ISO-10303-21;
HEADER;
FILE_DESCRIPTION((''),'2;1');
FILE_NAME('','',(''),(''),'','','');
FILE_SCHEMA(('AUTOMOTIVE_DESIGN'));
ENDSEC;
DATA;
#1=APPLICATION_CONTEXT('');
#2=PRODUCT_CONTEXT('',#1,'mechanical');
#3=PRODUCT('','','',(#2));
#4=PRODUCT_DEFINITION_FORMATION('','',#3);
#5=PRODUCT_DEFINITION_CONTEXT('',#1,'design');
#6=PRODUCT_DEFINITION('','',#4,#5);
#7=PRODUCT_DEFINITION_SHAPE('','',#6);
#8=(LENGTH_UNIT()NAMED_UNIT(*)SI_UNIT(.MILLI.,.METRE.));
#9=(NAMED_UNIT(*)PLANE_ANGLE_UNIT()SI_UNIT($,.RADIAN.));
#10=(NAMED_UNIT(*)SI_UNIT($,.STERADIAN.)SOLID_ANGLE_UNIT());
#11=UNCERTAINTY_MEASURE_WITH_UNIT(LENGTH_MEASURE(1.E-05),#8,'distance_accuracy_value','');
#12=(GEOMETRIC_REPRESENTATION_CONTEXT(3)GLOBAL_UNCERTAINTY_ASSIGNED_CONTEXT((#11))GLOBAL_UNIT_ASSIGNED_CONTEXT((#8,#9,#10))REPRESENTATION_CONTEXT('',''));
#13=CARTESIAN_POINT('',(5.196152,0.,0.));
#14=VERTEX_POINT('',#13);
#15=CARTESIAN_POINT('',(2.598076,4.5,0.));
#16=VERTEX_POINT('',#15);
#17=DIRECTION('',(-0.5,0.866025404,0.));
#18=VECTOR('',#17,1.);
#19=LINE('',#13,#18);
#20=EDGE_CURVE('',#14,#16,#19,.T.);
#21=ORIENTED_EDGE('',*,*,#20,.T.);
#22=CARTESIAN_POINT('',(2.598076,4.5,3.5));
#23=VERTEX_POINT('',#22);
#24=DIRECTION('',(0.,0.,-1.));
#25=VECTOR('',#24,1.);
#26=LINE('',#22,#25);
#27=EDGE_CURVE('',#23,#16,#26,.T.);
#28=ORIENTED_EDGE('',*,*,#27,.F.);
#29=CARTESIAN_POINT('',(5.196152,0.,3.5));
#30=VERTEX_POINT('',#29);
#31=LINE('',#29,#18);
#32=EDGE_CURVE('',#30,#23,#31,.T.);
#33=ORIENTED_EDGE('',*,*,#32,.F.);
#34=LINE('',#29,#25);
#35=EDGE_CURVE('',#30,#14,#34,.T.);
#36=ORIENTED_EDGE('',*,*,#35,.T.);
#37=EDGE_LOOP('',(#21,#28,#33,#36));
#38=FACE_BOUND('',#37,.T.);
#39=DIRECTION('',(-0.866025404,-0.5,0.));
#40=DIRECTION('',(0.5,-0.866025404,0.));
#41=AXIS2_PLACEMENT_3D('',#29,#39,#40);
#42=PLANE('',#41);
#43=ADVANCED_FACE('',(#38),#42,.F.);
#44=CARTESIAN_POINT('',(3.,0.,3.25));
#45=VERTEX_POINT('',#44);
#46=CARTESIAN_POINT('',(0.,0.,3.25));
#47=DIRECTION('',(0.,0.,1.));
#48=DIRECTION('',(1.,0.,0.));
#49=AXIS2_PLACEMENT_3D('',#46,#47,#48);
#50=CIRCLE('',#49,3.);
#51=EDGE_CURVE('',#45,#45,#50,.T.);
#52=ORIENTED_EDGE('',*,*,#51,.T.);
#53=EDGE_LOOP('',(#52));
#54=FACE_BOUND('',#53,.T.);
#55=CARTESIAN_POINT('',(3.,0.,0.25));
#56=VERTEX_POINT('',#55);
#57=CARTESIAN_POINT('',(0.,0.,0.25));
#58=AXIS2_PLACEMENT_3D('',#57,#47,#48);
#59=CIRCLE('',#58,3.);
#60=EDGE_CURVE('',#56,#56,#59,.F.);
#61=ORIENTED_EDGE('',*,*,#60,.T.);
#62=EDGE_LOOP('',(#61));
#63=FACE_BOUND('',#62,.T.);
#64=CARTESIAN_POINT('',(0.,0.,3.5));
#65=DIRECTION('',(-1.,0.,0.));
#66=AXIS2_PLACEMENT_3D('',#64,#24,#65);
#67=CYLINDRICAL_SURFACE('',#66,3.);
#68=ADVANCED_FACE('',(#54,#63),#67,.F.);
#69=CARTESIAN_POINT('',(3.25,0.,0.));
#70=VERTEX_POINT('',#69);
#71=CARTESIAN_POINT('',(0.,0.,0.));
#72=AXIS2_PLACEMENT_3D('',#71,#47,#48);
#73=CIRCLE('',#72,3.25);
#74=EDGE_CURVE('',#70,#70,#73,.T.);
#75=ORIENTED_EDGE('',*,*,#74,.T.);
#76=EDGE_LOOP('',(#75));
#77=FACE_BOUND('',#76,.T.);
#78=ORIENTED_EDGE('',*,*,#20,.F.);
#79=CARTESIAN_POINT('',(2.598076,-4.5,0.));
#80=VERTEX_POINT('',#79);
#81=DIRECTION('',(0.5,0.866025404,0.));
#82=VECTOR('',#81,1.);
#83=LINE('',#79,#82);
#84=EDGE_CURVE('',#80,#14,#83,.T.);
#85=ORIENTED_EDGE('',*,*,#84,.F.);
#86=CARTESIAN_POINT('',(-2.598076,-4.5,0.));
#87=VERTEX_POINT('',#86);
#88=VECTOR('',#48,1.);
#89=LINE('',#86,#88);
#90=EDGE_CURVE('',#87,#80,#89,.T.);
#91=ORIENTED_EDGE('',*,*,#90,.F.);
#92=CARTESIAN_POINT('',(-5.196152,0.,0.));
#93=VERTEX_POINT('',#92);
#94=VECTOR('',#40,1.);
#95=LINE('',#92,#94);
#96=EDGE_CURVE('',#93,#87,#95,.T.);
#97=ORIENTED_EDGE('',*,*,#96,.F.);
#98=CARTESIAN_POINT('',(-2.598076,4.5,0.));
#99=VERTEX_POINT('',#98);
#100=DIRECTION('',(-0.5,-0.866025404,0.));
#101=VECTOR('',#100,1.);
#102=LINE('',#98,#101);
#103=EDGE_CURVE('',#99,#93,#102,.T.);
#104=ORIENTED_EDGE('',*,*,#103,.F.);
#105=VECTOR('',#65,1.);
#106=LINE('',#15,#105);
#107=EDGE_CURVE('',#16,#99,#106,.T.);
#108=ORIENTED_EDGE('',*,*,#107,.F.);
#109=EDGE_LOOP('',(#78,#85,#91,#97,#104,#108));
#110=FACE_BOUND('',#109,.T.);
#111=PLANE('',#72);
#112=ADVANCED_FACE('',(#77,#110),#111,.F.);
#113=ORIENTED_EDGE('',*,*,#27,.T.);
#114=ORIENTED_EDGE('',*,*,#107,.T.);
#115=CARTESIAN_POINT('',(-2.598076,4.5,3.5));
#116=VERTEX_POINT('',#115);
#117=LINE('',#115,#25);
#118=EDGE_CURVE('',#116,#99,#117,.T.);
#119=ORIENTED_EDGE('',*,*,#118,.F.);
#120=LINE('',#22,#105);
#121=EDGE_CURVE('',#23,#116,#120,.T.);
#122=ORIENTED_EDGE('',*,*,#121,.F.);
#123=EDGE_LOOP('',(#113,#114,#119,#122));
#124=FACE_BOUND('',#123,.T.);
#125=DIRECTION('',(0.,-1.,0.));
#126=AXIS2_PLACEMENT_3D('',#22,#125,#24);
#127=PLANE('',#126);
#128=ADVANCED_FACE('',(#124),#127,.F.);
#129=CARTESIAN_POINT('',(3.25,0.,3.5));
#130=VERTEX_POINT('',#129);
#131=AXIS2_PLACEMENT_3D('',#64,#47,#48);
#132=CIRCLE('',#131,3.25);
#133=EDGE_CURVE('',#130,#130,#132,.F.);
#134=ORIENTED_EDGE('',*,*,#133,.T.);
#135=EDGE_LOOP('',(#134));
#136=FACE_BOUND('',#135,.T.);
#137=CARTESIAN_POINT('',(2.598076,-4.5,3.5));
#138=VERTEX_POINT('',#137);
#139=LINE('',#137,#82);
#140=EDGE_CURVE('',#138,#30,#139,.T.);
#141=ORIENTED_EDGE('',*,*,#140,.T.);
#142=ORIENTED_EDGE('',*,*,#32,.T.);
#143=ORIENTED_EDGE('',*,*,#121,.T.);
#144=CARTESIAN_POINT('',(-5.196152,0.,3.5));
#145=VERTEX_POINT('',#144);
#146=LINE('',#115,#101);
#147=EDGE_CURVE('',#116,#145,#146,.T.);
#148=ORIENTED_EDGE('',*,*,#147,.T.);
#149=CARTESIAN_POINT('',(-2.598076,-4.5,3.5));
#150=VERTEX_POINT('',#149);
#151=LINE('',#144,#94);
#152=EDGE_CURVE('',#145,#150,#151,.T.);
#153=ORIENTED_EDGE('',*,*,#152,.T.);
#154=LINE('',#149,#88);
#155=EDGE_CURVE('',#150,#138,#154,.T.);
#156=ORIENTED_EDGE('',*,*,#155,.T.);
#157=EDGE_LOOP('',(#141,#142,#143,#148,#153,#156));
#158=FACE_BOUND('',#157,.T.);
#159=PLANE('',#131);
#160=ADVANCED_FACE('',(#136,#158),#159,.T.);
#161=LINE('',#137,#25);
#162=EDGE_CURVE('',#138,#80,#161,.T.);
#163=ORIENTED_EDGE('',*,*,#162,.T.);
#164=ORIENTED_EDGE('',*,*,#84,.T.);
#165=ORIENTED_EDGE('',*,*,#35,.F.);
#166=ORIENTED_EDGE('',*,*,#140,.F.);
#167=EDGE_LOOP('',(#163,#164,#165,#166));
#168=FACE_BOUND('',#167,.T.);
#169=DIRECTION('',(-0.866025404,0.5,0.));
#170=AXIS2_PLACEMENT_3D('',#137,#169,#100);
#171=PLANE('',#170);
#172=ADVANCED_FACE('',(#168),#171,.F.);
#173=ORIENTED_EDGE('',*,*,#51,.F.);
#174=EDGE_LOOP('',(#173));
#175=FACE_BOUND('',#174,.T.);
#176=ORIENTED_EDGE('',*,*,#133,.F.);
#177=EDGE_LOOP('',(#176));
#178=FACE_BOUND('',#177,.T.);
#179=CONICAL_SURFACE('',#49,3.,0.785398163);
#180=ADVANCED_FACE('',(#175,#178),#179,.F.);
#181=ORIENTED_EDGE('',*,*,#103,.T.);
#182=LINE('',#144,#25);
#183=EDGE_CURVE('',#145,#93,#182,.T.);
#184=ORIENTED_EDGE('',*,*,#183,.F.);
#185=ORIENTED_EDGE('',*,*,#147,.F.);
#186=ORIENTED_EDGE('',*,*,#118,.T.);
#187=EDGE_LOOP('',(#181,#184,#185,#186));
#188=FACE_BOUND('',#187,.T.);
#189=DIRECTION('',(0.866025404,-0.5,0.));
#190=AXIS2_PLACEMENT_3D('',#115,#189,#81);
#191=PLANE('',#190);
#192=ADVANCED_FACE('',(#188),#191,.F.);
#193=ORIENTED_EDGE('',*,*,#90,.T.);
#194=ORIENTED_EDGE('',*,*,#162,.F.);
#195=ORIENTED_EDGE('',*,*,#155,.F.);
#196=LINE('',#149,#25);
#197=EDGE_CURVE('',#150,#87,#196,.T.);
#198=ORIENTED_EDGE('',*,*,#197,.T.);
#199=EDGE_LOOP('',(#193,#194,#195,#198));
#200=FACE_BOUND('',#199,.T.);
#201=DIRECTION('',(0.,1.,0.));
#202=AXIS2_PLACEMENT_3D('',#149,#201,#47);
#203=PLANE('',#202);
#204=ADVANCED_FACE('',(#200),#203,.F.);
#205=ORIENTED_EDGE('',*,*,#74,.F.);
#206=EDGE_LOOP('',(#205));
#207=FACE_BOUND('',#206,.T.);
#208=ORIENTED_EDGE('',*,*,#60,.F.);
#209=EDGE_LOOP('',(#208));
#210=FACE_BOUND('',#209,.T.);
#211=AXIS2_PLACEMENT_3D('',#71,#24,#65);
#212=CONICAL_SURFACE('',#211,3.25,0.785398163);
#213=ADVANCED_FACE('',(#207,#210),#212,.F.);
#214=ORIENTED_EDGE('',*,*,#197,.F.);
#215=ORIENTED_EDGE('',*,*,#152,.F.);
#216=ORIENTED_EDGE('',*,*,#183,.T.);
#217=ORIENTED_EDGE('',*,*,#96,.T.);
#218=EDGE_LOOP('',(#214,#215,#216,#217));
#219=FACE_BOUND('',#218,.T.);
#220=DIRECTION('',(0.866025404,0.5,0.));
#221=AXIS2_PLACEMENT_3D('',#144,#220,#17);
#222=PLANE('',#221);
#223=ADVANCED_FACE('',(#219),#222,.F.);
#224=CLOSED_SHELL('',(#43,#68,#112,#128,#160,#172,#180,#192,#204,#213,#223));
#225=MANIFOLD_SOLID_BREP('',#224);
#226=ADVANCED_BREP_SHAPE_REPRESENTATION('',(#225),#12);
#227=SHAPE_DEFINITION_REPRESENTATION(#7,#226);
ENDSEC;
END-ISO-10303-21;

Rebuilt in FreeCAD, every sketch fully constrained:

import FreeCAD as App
import Part
import Sketcher
Q = App.Units.Quantity


def edges_at(feature, points):
    """Names of the edges that pass closest to the given points."""
    edges = feature.Shape.Edges
    near = lambda p: min(range(len(edges)), key=lambda i: edges[i].distToShape(Part.Vertex(*p))[0])
    return sorted({f"Edge{near(p) + 1}" for p in points})

doc = App.newDocument("Part")
body = doc.addObject("PartDesign::Body", "Body")

sketch1 = doc.addObject("Sketcher::SketchObject", "Sketch")
body.addObject(sketch1)
sketch1.AttachmentSupport = (doc.XY_Plane, [""])
sketch1.MapMode = "FlatFace"
sketch1.addGeometry([
    Part.LineSegment(App.Vector(5.196152, 0, 0), App.Vector(2.598076, 4.5, 0)),
    Part.LineSegment(App.Vector(2.598076, 4.5, 0), App.Vector(-2.598076, 4.5, 0)),
    Part.LineSegment(App.Vector(-2.598076, 4.5, 0), App.Vector(-5.196152, 0, 0)),
    Part.LineSegment(App.Vector(-5.196152, 0, 0), App.Vector(-2.598076, -4.5, 0)),
    Part.LineSegment(App.Vector(-2.598076, -4.5, 0), App.Vector(2.598076, -4.5, 0)),
    Part.LineSegment(App.Vector(2.598076, -4.5, 0), App.Vector(5.196152, 0, 0)),
    Part.Circle(App.Vector(0, 0, 0), App.Vector(0, 0, 1), 3),
], False)
sketch1.addConstraint([
    Sketcher.Constraint("Coincident", 0, 2, 1, 1),
    Sketcher.Constraint("Coincident", 1, 2, 2, 1),
    Sketcher.Constraint("Coincident", 2, 2, 3, 1),
    Sketcher.Constraint("Coincident", 3, 2, 4, 1),
    Sketcher.Constraint("Coincident", 4, 2, 5, 1),
    Sketcher.Constraint("Coincident", 5, 2, 0, 1),
    Sketcher.Constraint("Horizontal", 1),
    Sketcher.Constraint("Horizontal", 4),
    Sketcher.Constraint("Coincident", 6, 3, -1, 1),
    Sketcher.Constraint("Symmetric", 0, 2, 3, 2, -1, 1),
    Sketcher.Constraint("Symmetric", 2, 2, 5, 2, -1, 1),
    Sketcher.Constraint("PointOnObject", 2, 2, -1),
    Sketcher.Constraint("Parallel", 2, 5),
    Sketcher.Constraint("Vertical", 1, 2, 3, 2),
    Sketcher.Constraint("Diameter", 6, 6.0),
    Sketcher.Constraint("Angle", 0, Q("120 deg")),
    Sketcher.Constraint("DistanceY", 3, 2, 1, 2, 9.0),
    Sketcher.Constraint("DistanceX", 1, 2, 1, 1, 5.196152),
])
pad1 = doc.addObject("PartDesign::Pad", "Pad")
body.addObject(pad1)
pad1.Profile = sketch1
pad1.Length = 3.5
doc.recompute()

chamfer = doc.addObject("PartDesign::Chamfer", "Chamfer")
body.addObject(chamfer)
chamfer.Base = (pad1, edges_at(pad1, [(-3, 0, 0), (-3, 0, 3.5)]))
chamfer.Size = 0.25

doc.recompute()
